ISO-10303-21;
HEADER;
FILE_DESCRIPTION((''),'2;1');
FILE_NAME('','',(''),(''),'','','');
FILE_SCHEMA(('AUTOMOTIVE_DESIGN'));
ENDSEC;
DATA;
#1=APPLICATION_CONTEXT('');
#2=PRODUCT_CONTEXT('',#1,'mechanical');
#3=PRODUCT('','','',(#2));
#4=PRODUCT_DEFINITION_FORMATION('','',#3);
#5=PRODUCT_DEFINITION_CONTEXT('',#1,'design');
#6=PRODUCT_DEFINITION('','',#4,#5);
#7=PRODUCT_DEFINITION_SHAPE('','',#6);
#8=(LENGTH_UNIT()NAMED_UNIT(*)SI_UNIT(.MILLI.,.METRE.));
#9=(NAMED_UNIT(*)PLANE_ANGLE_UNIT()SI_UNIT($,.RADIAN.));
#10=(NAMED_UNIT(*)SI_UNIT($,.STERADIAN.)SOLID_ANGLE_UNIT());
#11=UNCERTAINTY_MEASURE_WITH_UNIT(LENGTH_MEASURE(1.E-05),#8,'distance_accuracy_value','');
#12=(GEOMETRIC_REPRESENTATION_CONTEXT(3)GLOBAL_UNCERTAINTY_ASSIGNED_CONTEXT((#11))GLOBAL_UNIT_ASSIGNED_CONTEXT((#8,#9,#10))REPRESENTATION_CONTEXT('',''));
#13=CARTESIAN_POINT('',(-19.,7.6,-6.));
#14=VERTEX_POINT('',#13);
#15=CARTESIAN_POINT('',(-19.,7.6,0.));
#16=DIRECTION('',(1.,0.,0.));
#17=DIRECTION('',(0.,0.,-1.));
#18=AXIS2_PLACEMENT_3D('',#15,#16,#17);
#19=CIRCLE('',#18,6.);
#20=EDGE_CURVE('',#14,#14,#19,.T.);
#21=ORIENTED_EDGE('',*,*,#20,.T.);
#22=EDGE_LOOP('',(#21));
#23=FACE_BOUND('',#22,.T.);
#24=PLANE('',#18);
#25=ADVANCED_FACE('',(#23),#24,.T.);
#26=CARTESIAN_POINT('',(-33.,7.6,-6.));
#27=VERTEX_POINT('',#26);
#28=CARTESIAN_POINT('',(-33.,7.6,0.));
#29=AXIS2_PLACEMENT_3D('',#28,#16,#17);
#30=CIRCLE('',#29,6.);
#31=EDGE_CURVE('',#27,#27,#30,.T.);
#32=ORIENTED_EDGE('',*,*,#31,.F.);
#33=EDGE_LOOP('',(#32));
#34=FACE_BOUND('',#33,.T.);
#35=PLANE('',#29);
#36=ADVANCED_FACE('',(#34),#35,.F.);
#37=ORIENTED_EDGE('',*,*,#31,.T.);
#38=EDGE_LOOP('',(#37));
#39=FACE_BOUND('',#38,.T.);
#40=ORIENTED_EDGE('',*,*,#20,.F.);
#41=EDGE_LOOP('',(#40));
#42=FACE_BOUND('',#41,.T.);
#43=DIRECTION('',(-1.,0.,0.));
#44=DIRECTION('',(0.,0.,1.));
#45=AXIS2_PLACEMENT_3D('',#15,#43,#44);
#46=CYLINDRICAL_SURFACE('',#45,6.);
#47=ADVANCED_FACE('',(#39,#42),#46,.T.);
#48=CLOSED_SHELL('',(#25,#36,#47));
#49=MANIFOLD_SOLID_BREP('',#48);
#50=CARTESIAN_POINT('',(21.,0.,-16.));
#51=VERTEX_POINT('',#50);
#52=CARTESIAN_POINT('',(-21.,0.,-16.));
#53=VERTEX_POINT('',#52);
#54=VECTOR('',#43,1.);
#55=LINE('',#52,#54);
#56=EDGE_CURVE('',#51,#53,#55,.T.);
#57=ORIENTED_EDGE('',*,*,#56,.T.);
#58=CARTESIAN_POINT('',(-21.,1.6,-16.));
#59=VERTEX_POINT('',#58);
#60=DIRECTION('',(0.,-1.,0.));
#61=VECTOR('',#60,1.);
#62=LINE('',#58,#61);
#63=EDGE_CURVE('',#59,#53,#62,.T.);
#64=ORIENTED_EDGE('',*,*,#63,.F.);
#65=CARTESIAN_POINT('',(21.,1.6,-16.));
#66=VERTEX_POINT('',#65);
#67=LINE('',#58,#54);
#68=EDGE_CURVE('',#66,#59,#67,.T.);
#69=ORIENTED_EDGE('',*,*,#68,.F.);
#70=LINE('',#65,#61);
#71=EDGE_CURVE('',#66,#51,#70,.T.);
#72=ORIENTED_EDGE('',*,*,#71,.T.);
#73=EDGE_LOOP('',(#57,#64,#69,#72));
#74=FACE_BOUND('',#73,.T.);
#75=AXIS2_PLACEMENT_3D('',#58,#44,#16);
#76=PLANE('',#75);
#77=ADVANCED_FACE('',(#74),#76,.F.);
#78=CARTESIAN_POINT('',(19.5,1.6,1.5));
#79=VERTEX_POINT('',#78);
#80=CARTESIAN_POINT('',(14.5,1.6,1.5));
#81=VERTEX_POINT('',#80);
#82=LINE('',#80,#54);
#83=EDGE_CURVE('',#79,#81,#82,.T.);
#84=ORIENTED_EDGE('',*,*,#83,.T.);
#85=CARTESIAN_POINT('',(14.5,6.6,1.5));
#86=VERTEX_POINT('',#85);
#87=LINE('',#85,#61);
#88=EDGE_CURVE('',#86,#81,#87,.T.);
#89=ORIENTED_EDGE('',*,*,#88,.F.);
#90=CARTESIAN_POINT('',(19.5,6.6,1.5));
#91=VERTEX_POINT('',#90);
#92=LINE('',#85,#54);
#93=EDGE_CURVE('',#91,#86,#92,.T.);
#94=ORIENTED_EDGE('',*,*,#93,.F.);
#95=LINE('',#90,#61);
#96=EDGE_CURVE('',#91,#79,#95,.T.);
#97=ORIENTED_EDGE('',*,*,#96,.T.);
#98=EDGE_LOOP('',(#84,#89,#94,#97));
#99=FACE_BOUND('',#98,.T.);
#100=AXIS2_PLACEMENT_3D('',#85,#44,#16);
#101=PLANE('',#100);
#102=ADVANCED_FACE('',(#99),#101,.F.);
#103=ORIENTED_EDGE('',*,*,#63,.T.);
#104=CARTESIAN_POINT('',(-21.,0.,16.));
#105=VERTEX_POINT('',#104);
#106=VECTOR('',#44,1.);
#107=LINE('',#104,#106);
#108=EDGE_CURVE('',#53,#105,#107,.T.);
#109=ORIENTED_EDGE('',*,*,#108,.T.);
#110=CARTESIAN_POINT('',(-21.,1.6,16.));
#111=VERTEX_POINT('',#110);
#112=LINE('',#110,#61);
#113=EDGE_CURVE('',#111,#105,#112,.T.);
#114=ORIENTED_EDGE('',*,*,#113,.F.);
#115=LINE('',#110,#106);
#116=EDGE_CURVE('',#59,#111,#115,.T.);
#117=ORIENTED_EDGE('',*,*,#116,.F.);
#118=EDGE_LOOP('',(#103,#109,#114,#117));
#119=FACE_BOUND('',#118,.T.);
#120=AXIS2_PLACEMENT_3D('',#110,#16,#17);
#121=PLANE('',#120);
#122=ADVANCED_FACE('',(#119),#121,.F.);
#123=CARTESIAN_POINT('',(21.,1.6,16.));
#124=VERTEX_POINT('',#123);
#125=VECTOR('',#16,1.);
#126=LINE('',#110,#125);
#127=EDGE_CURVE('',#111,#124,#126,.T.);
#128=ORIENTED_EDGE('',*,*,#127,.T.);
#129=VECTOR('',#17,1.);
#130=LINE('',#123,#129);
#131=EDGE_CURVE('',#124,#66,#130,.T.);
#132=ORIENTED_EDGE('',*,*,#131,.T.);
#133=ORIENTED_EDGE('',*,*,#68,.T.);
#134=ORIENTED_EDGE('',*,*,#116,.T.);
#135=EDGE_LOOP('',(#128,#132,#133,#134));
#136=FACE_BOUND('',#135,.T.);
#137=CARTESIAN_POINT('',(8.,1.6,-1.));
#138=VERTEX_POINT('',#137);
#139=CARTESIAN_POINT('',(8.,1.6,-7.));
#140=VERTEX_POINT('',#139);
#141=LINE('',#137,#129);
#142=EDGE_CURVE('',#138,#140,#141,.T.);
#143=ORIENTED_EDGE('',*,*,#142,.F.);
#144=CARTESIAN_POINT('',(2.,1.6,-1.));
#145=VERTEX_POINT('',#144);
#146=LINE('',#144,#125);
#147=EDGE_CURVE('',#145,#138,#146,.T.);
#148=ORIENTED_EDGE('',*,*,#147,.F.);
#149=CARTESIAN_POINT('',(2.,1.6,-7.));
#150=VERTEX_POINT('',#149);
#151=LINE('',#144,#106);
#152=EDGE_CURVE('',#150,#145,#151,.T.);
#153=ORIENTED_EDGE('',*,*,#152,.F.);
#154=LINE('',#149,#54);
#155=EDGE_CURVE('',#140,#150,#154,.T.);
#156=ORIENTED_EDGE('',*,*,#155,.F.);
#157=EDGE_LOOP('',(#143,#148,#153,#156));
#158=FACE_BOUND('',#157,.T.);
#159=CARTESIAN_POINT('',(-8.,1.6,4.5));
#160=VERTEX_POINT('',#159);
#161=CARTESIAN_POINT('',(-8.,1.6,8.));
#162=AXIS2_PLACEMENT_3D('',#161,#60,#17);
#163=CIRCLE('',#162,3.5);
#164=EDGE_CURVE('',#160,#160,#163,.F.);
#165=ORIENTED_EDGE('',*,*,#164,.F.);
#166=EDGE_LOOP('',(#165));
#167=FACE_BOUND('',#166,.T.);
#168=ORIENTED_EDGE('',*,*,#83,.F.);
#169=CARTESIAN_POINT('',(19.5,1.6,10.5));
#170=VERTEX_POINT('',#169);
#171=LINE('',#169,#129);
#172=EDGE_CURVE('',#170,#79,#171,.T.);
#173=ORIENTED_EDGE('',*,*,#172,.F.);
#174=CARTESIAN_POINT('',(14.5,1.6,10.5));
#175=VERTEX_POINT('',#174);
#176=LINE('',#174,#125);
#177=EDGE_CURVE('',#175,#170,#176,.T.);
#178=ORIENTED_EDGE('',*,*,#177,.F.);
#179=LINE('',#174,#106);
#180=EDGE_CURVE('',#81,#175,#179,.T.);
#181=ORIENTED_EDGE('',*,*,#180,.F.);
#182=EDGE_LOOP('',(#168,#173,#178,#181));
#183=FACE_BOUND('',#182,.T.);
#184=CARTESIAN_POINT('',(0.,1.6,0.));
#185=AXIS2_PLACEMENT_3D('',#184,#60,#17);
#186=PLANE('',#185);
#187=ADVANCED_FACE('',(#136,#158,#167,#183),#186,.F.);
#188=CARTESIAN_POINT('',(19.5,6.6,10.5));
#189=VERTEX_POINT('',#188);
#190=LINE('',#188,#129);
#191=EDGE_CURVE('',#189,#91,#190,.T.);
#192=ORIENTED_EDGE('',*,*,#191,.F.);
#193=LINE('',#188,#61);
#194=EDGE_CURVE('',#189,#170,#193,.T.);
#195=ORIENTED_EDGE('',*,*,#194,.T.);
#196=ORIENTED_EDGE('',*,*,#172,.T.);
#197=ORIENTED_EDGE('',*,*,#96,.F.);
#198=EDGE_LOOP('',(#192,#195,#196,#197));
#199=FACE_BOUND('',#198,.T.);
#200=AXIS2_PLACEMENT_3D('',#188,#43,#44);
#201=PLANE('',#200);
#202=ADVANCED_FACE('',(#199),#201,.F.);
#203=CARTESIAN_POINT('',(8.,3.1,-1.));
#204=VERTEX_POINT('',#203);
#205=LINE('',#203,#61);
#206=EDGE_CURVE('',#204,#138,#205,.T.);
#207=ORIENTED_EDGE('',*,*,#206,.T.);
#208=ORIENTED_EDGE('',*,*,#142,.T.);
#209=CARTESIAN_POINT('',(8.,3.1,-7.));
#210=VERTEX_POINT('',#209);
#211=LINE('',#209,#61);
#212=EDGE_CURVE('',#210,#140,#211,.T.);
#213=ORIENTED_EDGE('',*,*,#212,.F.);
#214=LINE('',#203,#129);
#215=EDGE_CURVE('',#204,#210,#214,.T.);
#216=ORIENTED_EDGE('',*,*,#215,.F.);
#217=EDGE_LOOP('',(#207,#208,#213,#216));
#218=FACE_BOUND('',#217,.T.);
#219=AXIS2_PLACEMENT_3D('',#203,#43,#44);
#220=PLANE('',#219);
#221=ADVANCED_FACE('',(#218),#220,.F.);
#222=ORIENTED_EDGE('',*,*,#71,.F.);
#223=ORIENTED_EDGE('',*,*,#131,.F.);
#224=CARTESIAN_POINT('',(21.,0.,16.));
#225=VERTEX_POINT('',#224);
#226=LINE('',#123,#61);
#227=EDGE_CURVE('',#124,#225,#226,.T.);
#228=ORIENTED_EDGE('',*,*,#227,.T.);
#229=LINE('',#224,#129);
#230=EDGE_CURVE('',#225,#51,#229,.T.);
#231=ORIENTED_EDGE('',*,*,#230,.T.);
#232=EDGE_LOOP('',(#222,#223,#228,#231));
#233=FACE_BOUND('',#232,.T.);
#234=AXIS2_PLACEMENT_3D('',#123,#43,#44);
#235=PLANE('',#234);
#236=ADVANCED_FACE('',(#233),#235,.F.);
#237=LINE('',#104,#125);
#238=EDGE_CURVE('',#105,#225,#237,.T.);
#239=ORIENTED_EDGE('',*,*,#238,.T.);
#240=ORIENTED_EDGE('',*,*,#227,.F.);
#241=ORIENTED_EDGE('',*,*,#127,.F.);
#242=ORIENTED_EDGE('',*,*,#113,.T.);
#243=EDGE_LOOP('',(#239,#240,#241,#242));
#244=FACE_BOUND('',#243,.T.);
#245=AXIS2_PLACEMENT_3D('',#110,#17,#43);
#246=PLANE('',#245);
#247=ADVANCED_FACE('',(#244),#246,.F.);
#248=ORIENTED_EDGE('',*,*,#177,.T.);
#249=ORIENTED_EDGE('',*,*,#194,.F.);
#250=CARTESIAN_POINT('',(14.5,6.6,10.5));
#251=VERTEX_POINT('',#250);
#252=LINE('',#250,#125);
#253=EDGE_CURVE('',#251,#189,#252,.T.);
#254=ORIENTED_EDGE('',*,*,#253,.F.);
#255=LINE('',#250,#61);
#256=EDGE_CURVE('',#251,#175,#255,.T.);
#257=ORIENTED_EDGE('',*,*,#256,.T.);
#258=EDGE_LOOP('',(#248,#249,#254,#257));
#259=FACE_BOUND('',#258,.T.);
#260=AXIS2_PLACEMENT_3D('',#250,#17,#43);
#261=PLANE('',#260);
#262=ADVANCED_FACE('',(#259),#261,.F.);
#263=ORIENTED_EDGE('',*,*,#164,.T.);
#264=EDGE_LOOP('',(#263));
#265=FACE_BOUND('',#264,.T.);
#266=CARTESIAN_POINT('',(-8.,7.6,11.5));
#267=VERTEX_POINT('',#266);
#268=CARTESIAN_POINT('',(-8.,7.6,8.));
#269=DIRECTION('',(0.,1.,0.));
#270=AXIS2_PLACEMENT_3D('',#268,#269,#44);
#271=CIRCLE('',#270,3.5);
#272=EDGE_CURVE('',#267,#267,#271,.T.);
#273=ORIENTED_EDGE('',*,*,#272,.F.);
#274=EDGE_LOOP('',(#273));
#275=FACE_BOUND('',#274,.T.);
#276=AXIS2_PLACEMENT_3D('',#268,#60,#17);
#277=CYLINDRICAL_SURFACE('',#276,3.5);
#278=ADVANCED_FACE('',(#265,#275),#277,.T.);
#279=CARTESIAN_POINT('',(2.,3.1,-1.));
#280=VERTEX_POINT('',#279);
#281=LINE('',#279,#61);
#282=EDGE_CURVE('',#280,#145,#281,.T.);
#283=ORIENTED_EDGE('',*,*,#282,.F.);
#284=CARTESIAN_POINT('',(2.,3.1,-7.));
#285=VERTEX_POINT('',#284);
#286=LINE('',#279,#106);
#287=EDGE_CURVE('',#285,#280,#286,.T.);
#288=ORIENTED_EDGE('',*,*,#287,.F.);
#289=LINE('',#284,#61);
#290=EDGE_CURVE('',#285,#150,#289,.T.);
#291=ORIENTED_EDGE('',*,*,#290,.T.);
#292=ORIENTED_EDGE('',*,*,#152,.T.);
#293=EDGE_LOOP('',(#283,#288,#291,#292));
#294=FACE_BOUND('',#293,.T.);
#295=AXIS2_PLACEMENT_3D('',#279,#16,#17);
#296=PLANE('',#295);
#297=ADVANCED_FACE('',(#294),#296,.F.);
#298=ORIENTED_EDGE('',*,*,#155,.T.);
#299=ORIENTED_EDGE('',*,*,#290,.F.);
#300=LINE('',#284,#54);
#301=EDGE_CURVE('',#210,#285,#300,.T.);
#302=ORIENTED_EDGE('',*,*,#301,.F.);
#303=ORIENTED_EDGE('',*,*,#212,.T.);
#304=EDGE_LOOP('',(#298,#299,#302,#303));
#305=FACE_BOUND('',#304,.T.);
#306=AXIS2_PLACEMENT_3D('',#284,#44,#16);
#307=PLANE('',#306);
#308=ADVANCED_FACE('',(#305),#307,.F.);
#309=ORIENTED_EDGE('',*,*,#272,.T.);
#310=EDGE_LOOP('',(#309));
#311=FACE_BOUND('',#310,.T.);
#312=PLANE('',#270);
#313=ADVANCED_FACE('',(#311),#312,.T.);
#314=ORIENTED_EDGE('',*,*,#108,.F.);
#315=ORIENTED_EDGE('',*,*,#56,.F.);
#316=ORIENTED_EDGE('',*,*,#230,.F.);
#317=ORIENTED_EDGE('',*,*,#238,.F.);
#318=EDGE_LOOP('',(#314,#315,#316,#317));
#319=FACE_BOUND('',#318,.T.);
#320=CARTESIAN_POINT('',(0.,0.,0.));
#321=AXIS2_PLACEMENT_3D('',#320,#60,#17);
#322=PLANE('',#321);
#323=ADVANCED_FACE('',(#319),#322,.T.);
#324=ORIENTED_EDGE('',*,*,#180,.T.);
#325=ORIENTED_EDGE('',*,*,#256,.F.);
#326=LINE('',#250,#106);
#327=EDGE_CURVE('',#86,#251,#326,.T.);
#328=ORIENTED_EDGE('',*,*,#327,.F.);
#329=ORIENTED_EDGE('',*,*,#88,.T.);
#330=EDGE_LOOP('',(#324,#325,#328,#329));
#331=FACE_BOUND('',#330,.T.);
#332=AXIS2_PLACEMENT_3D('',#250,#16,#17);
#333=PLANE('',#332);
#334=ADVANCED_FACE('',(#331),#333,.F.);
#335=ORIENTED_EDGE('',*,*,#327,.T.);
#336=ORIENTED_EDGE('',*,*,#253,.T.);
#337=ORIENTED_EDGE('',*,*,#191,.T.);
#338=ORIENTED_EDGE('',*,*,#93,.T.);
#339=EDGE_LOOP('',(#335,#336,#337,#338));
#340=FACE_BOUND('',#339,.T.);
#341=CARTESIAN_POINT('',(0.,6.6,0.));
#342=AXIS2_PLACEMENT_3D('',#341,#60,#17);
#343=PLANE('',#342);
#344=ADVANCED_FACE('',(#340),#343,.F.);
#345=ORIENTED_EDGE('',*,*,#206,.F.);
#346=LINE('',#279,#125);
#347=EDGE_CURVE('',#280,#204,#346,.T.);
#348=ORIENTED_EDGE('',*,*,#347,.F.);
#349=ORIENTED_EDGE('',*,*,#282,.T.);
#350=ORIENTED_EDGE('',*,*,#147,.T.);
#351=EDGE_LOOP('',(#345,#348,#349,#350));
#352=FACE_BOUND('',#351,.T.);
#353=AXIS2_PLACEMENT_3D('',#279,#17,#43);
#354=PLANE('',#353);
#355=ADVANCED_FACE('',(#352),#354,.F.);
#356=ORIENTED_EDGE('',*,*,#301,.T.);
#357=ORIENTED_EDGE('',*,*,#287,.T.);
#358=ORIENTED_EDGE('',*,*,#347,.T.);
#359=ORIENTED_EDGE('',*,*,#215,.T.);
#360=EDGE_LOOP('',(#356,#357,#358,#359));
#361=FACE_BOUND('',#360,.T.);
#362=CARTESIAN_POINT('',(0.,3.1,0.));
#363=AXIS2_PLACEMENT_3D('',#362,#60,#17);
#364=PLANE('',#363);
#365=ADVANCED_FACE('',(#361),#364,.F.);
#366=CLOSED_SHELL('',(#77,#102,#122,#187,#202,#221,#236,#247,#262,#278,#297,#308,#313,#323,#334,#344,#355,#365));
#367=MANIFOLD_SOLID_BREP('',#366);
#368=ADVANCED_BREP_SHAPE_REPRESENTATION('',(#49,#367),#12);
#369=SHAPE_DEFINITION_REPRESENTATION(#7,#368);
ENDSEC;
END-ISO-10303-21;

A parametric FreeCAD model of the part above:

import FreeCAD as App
import Part
import Sketcher
Q = App.Units.Quantity


def add_polygon(sketch, points):
    """Adds a closed chain of lines whose ends are joined by coincident constraints."""
    first, n = sketch.GeometryCount, len(points)
    for a, b in zip(points, points[1:] + points[:1]):
        sketch.addGeometry(Part.LineSegment(App.Vector(*a, 0), App.Vector(*b, 0)), False)
    for i in range(n):
        sketch.addConstraint(Sketcher.Constraint("Coincident", first + i, 2, first + (i + 1) % n, 1))

doc = App.newDocument("Part")
body = doc.addObject("PartDesign::Body", "Body")

sketch1 = doc.addObject("Sketcher::SketchObject", "Sketch")
body.addObject(sketch1)
sketch1.AttachmentSupport = (doc.XZ_Plane, [""])
sketch1.MapMode = "FlatFace"
add_polygon(sketch1, [(-21, -16), (-21, 16), (21, 16), (21, -16)])
sketch1.addConstraint([
    Sketcher.Constraint("Vertical", 0),
    Sketcher.Constraint("Horizontal", 1),
    Sketcher.Constraint("Vertical", 2),
    Sketcher.Constraint("Horizontal", 3),
    Sketcher.Constraint("Symmetric", 0, 2, 2, 2, -1, 1),
    Sketcher.Constraint("DistanceX", 1, 1, 1, 2, Q("42 mm")),
    Sketcher.Constraint("DistanceY", 0, 1, 0, 2, Q("32 mm")),
])
pad1 = doc.addObject("PartDesign::Pad", "Pad")
body.addObject(pad1)
pad1.Profile = sketch1
pad1.Length = 1.6
pad1.Reversed = True

sketch2 = doc.addObject("Sketcher::SketchObject", "Sketch001")
body.addObject(sketch2)
sketch2.AttachmentSupport = (doc.XZ_Plane, [""])
sketch2.MapMode = "FlatFace"
sketch2.AttachmentOffset = App.Placement(App.Vector(0, 0, -1.6), App.Rotation())
add_polygon(sketch2, [(2, -7), (2, -1), (8, -1), (8, -7)])
sketch2.addConstraint([
    Sketcher.Constraint("Vertical", 0),
    Sketcher.Constraint("Horizontal", 1),
    Sketcher.Constraint("Vertical", 2),
    Sketcher.Constraint("Horizontal", 3),
    Sketcher.Constraint("Equal", 3, 0),
    Sketcher.Constraint("DistanceX", 1, 1, 1, 2, Q("6 mm")),
    Sketcher.Constraint("DistanceX", -1, 1, 0, 2, Q("2 mm")),
    Sketcher.Constraint("DistanceY", 0, 2, -1, 1, Q("1 mm")),
])
pad2 = doc.addObject("PartDesign::Pad", "Pad001")
body.addObject(pad2)
pad2.Profile = sketch2
pad2.Length = 1.5
pad2.Reversed = True

sketch3 = doc.addObject("Sketcher::SketchObject", "Sketch002")
body.addObject(sketch3)
sketch3.AttachmentSupport = (doc.XZ_Plane, [""])
sketch3.MapMode = "FlatFace"
sketch3.AttachmentOffset = App.Placement(App.Vector(0, 0, -1.6), App.Rotation())
add_polygon(sketch3, [(14, 2), (14, 10), (20, 10), (20, 2)])
sketch3.addConstraint([
    Sketcher.Constraint("Vertical", 0),
    Sketcher.Constraint("Horizontal", 1),
    Sketcher.Constraint("Vertical", 2),
    Sketcher.Constraint("Horizontal", 3),
    Sketcher.Constraint("DistanceX", 1, 1, 1, 2, Q("5 mm")),
    Sketcher.Constraint("DistanceY", 0, 1, 0, 2, Q("9 mm")),
    Sketcher.Constraint("DistanceX", -1, 1, 0, 2, Q("14.5 mm")),
    Sketcher.Constraint("DistanceY", -1, 1, 0, 2, Q("10.5 mm")),
])
pad3 = doc.addObject("PartDesign::Pad", "Pad002")
body.addObject(pad3)
pad3.Profile = sketch3
pad3.Length = 5
pad3.Reversed = True

sketch4 = doc.addObject("Sketcher::SketchObject", "Sketch003")
body.addObject(sketch4)
sketch4.AttachmentSupport = (doc.XZ_Plane, [""])
sketch4.MapMode = "FlatFace"
sketch4.AttachmentOffset = App.Placement(App.Vector(0, 0, -1.6), App.Rotation())
sketch4.addGeometry(Part.Circle(App.Vector(-8, 8, 0), App.Vector(0, 0, 1), 3.5), False)
sketch4.addConstraint([
    Sketcher.Constraint("Diameter", 0, Q("7 mm")),
    Sketcher.Constraint("DistanceX", 0, 3, -1, 1, Q("8 mm")),
    Sketcher.Constraint("DistanceY", -1, 1, 0, 3, Q("8 mm")),
])
pad4 = doc.addObject("PartDesign::Pad", "Pad003")
body.addObject(pad4)
pad4.Profile = sketch4
pad4.Length = 6
pad4.Reversed = True
body2 = doc.addObject("PartDesign::Body", "Body001")

sketch5 = doc.addObject("Sketcher::SketchObject", "Sketch004")
body2.addObject(sketch5)
sketch5.AttachmentSupport = (doc.getObject("YZ_Plane001"), [""])
sketch5.MapMode = "FlatFace"
sketch5.AttachmentOffset = App.Placement(App.Vector(0, 0, -33), App.Rotation())
sketch5.addGeometry(Part.Circle(App.Vector(8, 0, 0), App.Vector(0, 0, 1), 6), False)
sketch5.addConstraint([
    Sketcher.Constraint("PointOnObject", 0, 3, -1),
    Sketcher.Constraint("Diameter", 0, Q("12 mm")),
    Sketcher.Constraint("DistanceX", -1, 1, 0, 3, Q("7.6 mm")),
])
pad5 = doc.addObject("PartDesign::Pad", "Pad004")
body2.addObject(pad5)
pad5.Profile = sketch5
pad5.Length = 14

doc.recompute()
